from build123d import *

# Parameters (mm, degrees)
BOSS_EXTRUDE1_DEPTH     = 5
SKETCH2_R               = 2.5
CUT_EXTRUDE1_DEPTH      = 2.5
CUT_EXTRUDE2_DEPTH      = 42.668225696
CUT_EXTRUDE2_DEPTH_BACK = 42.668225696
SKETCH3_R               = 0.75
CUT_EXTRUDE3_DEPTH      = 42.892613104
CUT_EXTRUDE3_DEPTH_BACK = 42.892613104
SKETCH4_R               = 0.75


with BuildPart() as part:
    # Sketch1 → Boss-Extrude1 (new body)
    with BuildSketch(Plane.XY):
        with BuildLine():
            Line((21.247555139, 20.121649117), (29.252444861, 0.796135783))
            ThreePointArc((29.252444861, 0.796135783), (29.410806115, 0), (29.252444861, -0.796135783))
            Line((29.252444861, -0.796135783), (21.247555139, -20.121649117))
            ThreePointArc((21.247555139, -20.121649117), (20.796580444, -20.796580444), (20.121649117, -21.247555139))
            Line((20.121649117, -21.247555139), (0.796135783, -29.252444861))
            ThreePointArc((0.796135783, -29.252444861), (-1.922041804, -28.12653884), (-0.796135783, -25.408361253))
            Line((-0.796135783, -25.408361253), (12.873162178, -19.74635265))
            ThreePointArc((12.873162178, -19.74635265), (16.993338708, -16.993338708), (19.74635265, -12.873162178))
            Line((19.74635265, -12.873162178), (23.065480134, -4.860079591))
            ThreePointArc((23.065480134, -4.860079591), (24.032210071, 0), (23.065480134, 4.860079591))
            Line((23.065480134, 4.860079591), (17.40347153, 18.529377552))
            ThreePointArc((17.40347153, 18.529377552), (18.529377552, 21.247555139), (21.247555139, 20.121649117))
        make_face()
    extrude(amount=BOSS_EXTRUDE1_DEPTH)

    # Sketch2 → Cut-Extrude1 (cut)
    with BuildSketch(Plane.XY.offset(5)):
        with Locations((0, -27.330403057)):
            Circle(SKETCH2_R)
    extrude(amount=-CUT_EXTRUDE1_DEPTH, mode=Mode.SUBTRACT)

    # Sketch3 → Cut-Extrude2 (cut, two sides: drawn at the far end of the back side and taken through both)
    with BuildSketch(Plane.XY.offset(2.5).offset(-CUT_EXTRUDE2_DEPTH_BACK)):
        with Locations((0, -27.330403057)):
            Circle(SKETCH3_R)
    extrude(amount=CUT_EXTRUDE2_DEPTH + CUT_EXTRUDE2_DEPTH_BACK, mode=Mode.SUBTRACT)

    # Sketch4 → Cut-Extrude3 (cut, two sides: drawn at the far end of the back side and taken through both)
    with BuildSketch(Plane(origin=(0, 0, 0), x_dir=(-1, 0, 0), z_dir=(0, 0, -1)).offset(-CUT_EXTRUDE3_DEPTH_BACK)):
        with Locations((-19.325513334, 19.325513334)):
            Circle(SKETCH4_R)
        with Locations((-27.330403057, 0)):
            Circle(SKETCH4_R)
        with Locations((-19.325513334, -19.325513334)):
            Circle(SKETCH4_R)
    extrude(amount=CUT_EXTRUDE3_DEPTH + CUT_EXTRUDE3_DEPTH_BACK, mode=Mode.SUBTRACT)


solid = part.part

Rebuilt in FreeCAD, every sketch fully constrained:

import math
import FreeCAD as App
import Part
import Sketcher

V = App.Vector

doc = App.newDocument("Part")
body = doc.addObject("PartDesign::Body", "Body")

sketch1 = body.newObject("Sketcher::SketchObject", "Sketch")
sketch1.AttachmentSupport = (doc.getObject("XY_Plane"), [""])
sketch1.MapMode = "FlatFace"
sketch1.addGeometry(Part.LineSegment(V(29.3, 0.8, 0), V(21.2, 20.1, 0)), False)
sketch1.addGeometry(Part.ArcOfCircle(Part.Circle(V(19.3, 19.3, 0), V(0, 0, 1), 2.1), math.radians(22), math.radians(203)), False)
sketch1.addGeometry(Part.LineSegment(V(17.4, 18.5, 0), V(23.1, 4.9, 0)), False)
sketch1.addGeometry(Part.ArcOfCircle(Part.Circle(V(11.3, 0, 0), V(0, 0, 1), 12.7), math.radians(-22), math.radians(22)), False)
sketch1.addGeometry(Part.LineSegment(V(23.1, -4.9, 0), V(19.7, -12.9, 0)), False)
sketch1.addGeometry(Part.ArcOfCircle(Part.Circle(V(8, -8, 0), V(0, 0, 1), 12.7), math.radians(-67), math.radians(-23)), False)
sketch1.addGeometry(Part.LineSegment(V(12.9, -19.7, 0), V(-0.8, -25.4, 0)), False)
sketch1.addGeometry(Part.ArcOfCircle(Part.Circle(V(0, -27.3, 0), V(0, 0, 1), 2.1), math.radians(113), math.radians(293)), False)
sketch1.addGeometry(Part.LineSegment(V(0.8, -29.3, 0), V(20.1, -21.2, 0)), False)
sketch1.addGeometry(Part.ArcOfCircle(Part.Circle(V(19.3, -19.3, 0), V(0, 0, 1), 2.1), math.radians(-67), math.radians(-23)), False)
sketch1.addGeometry(Part.LineSegment(V(21.2, -20.1, 0), V(29.3, -0.8, 0)), False)
sketch1.addGeometry(Part.ArcOfCircle(Part.Circle(V(27.3, 0, 0), V(0, 0, 1), 2.1), math.radians(-23), math.radians(23)), False)
sketch1.addConstraint(Sketcher.Constraint("Tangent", 0, 2, 1, 1))
sketch1.addConstraint(Sketcher.Constraint("Tangent", 1, 2, 2, 1))
sketch1.addConstraint(Sketcher.Constraint("Tangent", 2, 2, 3, 2))
sketch1.addConstraint(Sketcher.Constraint("Tangent", 3, 1, 4, 1))
sketch1.addConstraint(Sketcher.Constraint("Tangent", 4, 2, 5, 2))
sketch1.addConstraint(Sketcher.Constraint("Tangent", 5, 1, 6, 1))
sketch1.addConstraint(Sketcher.Constraint("Tangent", 6, 2, 7, 1))
sketch1.addConstraint(Sketcher.Constraint("Tangent", 7, 2, 8, 1))
sketch1.addConstraint(Sketcher.Constraint("Tangent", 8, 2, 9, 1))
sketch1.addConstraint(Sketcher.Constraint("Tangent", 9, 2, 10, 1))
sketch1.addConstraint(Sketcher.Constraint("Tangent", 10, 2, 11, 1))
sketch1.addConstraint(Sketcher.Constraint("Tangent", 11, 2, 0, 1))
sketch1.addConstraint(Sketcher.Constraint("Equal", 3, 5))
sketch1.addConstraint(Sketcher.Constraint("Equal", 1, 7))
sketch1.addConstraint(Sketcher.Constraint("Equal", 7, 9))
sketch1.addConstraint(Sketcher.Constraint("Equal", 9, 11))
sketch1.addConstraint(Sketcher.Constraint("Symmetric", 1, 3, 9, 3, -1))
sketch1.addConstraint(Sketcher.Constraint("Symmetric", 2, 2, 3, 1, -1))
sketch1.addConstraint(Sketcher.Constraint("PointOnObject", 7, 3, -2))
sketch1.addConstraint(Sketcher.Constraint("PointOnObject", 11, 3, -1))
sketch1.addConstraint(Sketcher.Constraint("Parallel", 0, 2))
sketch1.addConstraint(Sketcher.Constraint("Perpendicular", 2, 6))
sketch1.addConstraint(Sketcher.Constraint("Parallel", 6, 8))
sketch1.addConstraint(Sketcher.Constraint("Equal", 2, 6))
sketch1.addConstraint(Sketcher.Constraint("Equal", 0, 8))
sketch1.addConstraint(Sketcher.Constraint("Radius", 3, 12.7))
sketch1.addConstraint(Sketcher.Constraint("Radius", 1, 2.080403))
sketch1.addConstraint(Sketcher.Constraint("Distance", 4, 8.673298))
pad1 = body.newObject("PartDesign::Pad", "Pad")
pad1.Profile = sketch1
pad1.Length = 5

sketch2 = body.newObject("Sketcher::SketchObject", "Sketch001")
sketch2.AttachmentSupport = (doc.getObject("XY_Plane"), [""])
sketch2.MapMode = "FlatFace"
sketch2.AttachmentOffset = App.Placement(V(0, 0, 5), App.Rotation())
sketch2.addGeometry(Part.Circle(V(0, -27.3, 0), V(0, 0, 1), 2.5), False)
sketch2.addConstraint(Sketcher.Constraint("PointOnObject", 0, 3, -2))
sketch2.addConstraint(Sketcher.Constraint("Diameter", 0, 5.0))
sketch2.addConstraint(Sketcher.Constraint("DistanceY", 0, 3, -1, 1, 27.330403))
pocket1 = body.newObject("PartDesign::Pocket", "Pocket")
pocket1.Profile = sketch2
pocket1.Length = 2.5

sketch3 = body.newObject("Sketcher::SketchObject", "Sketch002")
sketch3.AttachmentSupport = (doc.getObject("XY_Plane"), [""])
sketch3.MapMode = "FlatFace"
sketch3.AttachmentOffset = App.Placement(V(0, 0, 2.5), App.Rotation())
sketch3.addGeometry(Part.Circle(V(0, -27.3, 0), V(0, 0, 1), 0.8), False)
sketch3.addConstraint(Sketcher.Constraint("PointOnObject", 0, 3, -2))
sketch3.addConstraint(Sketcher.Constraint("Diameter", 0, 1.5))
sketch3.addConstraint(Sketcher.Constraint("DistanceY", 0, 3, -1, 1, 27.330403))
pocket2 = body.newObject("PartDesign::Pocket", "Pocket001")
pocket2.Profile = sketch3
pocket2.Type = "ThroughAll"
pocket2.Midplane = True

sketch4 = body.newObject("Sketcher::SketchObject", "Sketch003")
sketch4.AttachmentSupport = (doc.getObject("XY_Plane"), [""])
sketch4.MapMode = "FlatFace"
sketch4.addGeometry(Part.Circle(V(19.3, 19.3, 0), V(0, 0, 1), 0.8), False)
sketch4.addGeometry(Part.Circle(V(27.3, 0, 0), V(0, 0, 1), 0.8), False)
sketch4.addGeometry(Part.Circle(V(19.3, -19.3, 0), V(0, 0, 1), 0.8), False)
sketch4.addConstraint(Sketcher.Constraint("Equal", 0, 1))
sketch4.addConstraint(Sketcher.Constraint("Equal", 1, 2))
sketch4.addConstraint(Sketcher.Constraint("Symmetric", 0, 3, 2, 3, -1))
sketch4.addConstraint(Sketcher.Constraint("PointOnObject", 1, 3, -1))
sketch4.addConstraint(Sketcher.Constraint("Diameter", 0, 1.5))
sketch4.addConstraint(Sketcher.Constraint("DistanceX", 0, 3, 1, 3, 8.00489))
sketch4.addConstraint(Sketcher.Constraint("DistanceX", -1, 1, 0, 3, 19.325513))
sketch4.addConstraint(Sketcher.Constraint("DistanceY", -1, 1, 0, 3, 19.325513))
pocket3 = body.newObject("PartDesign::Pocket", "Pocket002")
pocket3.Profile = sketch4
pocket3.Type = "ThroughAll"
pocket3.Midplane = True

doc.recompute()
